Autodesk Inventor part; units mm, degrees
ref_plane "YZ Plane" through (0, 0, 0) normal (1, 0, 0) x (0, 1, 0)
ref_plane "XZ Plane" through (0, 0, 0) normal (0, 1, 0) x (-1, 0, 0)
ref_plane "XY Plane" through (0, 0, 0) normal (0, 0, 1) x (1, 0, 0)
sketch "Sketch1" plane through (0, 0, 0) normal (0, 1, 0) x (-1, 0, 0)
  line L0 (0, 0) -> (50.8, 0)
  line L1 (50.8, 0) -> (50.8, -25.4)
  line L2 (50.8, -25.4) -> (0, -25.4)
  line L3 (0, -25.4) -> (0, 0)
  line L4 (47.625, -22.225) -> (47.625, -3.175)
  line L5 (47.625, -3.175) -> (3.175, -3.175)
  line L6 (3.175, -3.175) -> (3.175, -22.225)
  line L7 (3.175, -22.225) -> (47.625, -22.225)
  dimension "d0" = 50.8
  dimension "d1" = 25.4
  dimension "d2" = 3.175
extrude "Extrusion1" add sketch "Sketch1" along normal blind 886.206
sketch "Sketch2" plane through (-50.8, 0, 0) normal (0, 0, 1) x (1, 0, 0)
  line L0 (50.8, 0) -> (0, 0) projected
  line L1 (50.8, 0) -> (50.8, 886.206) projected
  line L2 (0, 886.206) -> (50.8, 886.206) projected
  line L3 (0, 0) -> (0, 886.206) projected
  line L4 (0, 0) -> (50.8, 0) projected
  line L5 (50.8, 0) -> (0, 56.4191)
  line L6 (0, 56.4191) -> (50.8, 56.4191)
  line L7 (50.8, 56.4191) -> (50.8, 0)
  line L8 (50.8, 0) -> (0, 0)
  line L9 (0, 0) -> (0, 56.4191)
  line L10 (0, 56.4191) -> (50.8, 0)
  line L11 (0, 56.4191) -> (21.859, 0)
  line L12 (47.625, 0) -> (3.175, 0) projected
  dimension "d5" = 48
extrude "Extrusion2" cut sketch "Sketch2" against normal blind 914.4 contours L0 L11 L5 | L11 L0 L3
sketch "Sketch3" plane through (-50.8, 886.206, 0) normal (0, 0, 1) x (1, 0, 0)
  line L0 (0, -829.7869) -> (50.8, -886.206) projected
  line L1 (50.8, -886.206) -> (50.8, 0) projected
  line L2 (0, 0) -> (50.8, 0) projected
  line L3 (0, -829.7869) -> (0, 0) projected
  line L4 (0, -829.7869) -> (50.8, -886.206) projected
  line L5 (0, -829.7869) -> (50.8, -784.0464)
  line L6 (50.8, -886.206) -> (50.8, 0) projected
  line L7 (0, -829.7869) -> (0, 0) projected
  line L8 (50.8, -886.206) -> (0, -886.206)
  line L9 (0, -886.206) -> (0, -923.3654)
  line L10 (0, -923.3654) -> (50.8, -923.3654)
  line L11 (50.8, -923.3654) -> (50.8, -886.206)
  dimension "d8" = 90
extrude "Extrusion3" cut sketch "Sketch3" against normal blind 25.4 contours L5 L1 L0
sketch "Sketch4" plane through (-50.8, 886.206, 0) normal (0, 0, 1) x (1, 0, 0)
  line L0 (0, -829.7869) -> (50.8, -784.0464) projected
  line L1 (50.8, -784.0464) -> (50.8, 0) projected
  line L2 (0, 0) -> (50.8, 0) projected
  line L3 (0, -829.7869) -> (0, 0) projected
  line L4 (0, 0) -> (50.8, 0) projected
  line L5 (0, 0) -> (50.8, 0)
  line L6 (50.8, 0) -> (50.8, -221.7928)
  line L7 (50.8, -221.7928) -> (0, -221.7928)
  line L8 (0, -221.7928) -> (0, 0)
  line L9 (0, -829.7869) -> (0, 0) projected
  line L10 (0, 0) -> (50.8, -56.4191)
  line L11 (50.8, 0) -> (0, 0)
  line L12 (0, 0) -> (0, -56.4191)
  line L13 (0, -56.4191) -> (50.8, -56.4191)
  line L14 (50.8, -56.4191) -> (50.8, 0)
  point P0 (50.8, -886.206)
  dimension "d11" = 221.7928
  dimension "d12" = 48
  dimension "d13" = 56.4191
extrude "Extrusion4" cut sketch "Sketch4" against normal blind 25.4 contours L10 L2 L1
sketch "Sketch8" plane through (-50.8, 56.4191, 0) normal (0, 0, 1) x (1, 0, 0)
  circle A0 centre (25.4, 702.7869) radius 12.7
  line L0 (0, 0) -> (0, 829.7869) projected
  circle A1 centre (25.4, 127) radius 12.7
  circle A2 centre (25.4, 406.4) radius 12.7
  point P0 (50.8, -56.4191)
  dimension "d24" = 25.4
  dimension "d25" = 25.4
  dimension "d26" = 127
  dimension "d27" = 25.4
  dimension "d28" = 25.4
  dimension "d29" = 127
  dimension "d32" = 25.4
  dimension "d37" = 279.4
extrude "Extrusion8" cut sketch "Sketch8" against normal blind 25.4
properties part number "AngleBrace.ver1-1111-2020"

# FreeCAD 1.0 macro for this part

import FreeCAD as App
import Part
import Sketcher

V = App.Vector
Q = App.Units.Quantity


def add_polygon(sketch, points):
    """Adds a closed chain of lines whose ends are joined by coincident constraints."""
    first, n = sketch.GeometryCount, len(points)
    for a, b in zip(points, points[1:] + points[:1]):
        sketch.addGeometry(Part.LineSegment(App.Vector(*a, 0), App.Vector(*b, 0)), False)
    for i in range(n):
        sketch.addConstraint(Sketcher.Constraint("Coincident", first + i, 2, first + (i + 1) % n, 1))

doc = App.newDocument("Part")
params = doc.addObject("Spreadsheet::Sheet", "Params")
for row, (alias, value) in enumerate([
    ("sketch1_width", "2 in"),
    ("sketch1_height", "1 in"),
    ("pad1_length", "34.89 in"),
    ("sketch2_width", "2 in"),
    ("pocket1_length", "36 in"),
    ("pocket2_length", "1 in"),
    ("sketch4_width", "2 in"),
    ("pocket3_length", "1 in"),
    ("sketch5_diameter", "1 in"),
    ("pocket4_length", "1 in"),
], start=1):
    params.set(f"A{row}", alias)
    params.set(f"B{row}", "=" + value)
    params.setAlias(f"B{row}", alias)

body = doc.addObject("PartDesign::Body", "Body")

# Sketch on XZ plane
sketch1 = body.newObject("Sketcher::SketchObject", "Sketch")
sketch1.AttachmentSupport = (doc.getObject("XZ_Plane"), [""])
sketch1.MapMode = "FlatFace"
add_polygon(sketch1, [(-51, 0), (0, 0), (0, -25), (-51, -25)])  # lines 0-3
add_polygon(sketch1, [(-48, -3), (-48, -22), (-3, -22), (-3, -3)])  # lines 4-7
sketch1.addConstraint([
    Sketcher.Constraint("Horizontal", 0),
    Sketcher.Constraint("Vertical", 1),
    Sketcher.Constraint("Horizontal", 2),
    Sketcher.Constraint("Vertical", 3),
    Sketcher.Constraint("Vertical", 4),
    Sketcher.Constraint("Horizontal", 5),
    Sketcher.Constraint("Vertical", 6),
    Sketcher.Constraint("Horizontal", 7),
    Sketcher.Constraint("Coincident", 0, 2, -1, 1),
    Sketcher.Constraint("DistanceX", 0, 1, 0, 2, Q("2 in")),
    Sketcher.Constraint("DistanceY", 1, 2, 1, 1, Q("1 in")),
    Sketcher.Constraint("DistanceX", 5, 2, -1, 1, Q("0.125 in")),
    Sketcher.Constraint("DistanceY", 6, 2, -1, 1, Q("0.125 in")),
    Sketcher.Constraint("DistanceX", 2, 2, 4, 2, Q("0.125 in")),
    Sketcher.Constraint("DistanceY", 2, 2, 4, 2, Q("0.125 in")),
])
sketch1.setExpression("Constraints[17]", "Params.sketch1_width")
sketch1.setExpression("Constraints[18]", "Params.sketch1_height")
pad1 = body.newObject("PartDesign::Pad", "Pad")
pad1.Profile = sketch1
pad1.setExpression("Length", "Params.pad1_length")
pad1.Reversed = True

# Sketch on XY plane
sketch2 = body.newObject("Sketcher::SketchObject", "Sketch001")
sketch2.AttachmentSupport = (doc.getObject("XY_Plane"), [""])
sketch2.MapMode = "FlatFace"
add_polygon(sketch2, [(0, 0), (-51, 56), (-51, 0)])  # lines 0-2
sketch2.addConstraint([
    Sketcher.Constraint("Vertical", 1),
    Sketcher.Constraint("Horizontal", 2),
    Sketcher.Constraint("Coincident", 2, 2, -1, 1),
    Sketcher.Constraint("DistanceX", 2, 1, 2, 2, Q("2 in")),
    Sketcher.Constraint("Angle", 0, Q("132 deg")),
])
sketch2.setExpression("Constraints[6]", "Params.sketch2_width")
pocket1 = body.newObject("PartDesign::Pocket", "Pocket")
pocket1.Profile = sketch2
pocket1.setExpression("Length", "Params.pocket1_length")

# Sketch on XY plane
sketch3 = body.newObject("Sketcher::SketchObject", "Sketch002")
sketch3.AttachmentSupport = (doc.getObject("XY_Plane"), [""])
sketch3.MapMode = "FlatFace"
add_polygon(sketch3, [(0, 102), (-51, 56), (0, 0)])  # lines 0-2
sketch3.addConstraint([
    Sketcher.Constraint("Vertical", 2),
    Sketcher.Constraint("Coincident", 1, 2, -1, 1),
    Sketcher.Constraint("Perpendicular", 0, 1),
    Sketcher.Constraint("DistanceX", 0, 2, -1, 1, Q("2 in")),
    Sketcher.Constraint("Angle", 0, Q("-138 deg")),
])
pocket2 = body.newObject("PartDesign::Pocket", "Pocket001")
pocket2.Profile = sketch3
pocket2.setExpression("Length", "Params.pocket2_length")

# Sketch on XY plane
sketch4 = body.newObject("Sketcher::SketchObject", "Sketch003")
sketch4.AttachmentSupport = (doc.getObject("XY_Plane"), [""])
sketch4.MapMode = "FlatFace"
add_polygon(sketch4, [(-51, 886), (0, 830), (0, 886)])  # lines 0-2
sketch4.addConstraint([
    Sketcher.Constraint("Vertical", 1),
    Sketcher.Constraint("Horizontal", 2),
    Sketcher.Constraint("PointOnObject", 0, 2, -2),
    Sketcher.Constraint("Angle", 0, Q("-48 deg")),
    Sketcher.Constraint("DistanceX", 2, 2, 2, 1, Q("2 in")),
    Sketcher.Constraint("DistanceY", -1, 1, 1, 2, Q("34.89 in")),
])
sketch4.setExpression("Constraints[7]", "Params.sketch4_width")
pocket3 = body.newObject("PartDesign::Pocket", "Pocket002")
pocket3.Profile = sketch4
pocket3.setExpression("Length", "Params.pocket3_length")

# Sketch on XY plane
sketch5 = body.newObject("Sketcher::SketchObject", "Sketch004")
sketch5.AttachmentSupport = (doc.getObject("XY_Plane"), [""])
sketch5.MapMode = "FlatFace"
sketch5.addGeometry([
    Part.Circle(V(-25, 759, 0), V(0, 0, 1), 13),
    Part.Circle(V(-25, 183, 0), V(0, 0, 1), 13),
    Part.Circle(V(-25, 463, 0), V(0, 0, 1), 13),
], False)
sketch5.addConstraint([
    Sketcher.Constraint("Equal", 0, 1),
    Sketcher.Constraint("Equal", 1, 2),
    Sketcher.Constraint("Vertical", 0, 3, 1, 3),
    Sketcher.Constraint("Vertical", 1, 3, 2, 3),
    Sketcher.Constraint("Diameter", 0, Q("1 in")),
    Sketcher.Constraint("DistanceX", 0, 3, -1, 1, Q("1 in")),
    Sketcher.Constraint("DistanceY", 1, 3, 2, 3, Q("11 in")),
    Sketcher.Constraint("DistanceY", -1, 1, 0, 3, Q("29.89 in")),
    Sketcher.Constraint("DistanceY", -1, 1, 1, 3, 183.419),
])
sketch5.setExpression("Constraints[4]", "Params.sketch5_diameter")
pocket4 = body.newObject("PartDesign::Pocket", "Pocket003")
pocket4.Profile = sketch5
pocket4.setExpression("Length", "Params.pocket4_length")

doc.recompute()
